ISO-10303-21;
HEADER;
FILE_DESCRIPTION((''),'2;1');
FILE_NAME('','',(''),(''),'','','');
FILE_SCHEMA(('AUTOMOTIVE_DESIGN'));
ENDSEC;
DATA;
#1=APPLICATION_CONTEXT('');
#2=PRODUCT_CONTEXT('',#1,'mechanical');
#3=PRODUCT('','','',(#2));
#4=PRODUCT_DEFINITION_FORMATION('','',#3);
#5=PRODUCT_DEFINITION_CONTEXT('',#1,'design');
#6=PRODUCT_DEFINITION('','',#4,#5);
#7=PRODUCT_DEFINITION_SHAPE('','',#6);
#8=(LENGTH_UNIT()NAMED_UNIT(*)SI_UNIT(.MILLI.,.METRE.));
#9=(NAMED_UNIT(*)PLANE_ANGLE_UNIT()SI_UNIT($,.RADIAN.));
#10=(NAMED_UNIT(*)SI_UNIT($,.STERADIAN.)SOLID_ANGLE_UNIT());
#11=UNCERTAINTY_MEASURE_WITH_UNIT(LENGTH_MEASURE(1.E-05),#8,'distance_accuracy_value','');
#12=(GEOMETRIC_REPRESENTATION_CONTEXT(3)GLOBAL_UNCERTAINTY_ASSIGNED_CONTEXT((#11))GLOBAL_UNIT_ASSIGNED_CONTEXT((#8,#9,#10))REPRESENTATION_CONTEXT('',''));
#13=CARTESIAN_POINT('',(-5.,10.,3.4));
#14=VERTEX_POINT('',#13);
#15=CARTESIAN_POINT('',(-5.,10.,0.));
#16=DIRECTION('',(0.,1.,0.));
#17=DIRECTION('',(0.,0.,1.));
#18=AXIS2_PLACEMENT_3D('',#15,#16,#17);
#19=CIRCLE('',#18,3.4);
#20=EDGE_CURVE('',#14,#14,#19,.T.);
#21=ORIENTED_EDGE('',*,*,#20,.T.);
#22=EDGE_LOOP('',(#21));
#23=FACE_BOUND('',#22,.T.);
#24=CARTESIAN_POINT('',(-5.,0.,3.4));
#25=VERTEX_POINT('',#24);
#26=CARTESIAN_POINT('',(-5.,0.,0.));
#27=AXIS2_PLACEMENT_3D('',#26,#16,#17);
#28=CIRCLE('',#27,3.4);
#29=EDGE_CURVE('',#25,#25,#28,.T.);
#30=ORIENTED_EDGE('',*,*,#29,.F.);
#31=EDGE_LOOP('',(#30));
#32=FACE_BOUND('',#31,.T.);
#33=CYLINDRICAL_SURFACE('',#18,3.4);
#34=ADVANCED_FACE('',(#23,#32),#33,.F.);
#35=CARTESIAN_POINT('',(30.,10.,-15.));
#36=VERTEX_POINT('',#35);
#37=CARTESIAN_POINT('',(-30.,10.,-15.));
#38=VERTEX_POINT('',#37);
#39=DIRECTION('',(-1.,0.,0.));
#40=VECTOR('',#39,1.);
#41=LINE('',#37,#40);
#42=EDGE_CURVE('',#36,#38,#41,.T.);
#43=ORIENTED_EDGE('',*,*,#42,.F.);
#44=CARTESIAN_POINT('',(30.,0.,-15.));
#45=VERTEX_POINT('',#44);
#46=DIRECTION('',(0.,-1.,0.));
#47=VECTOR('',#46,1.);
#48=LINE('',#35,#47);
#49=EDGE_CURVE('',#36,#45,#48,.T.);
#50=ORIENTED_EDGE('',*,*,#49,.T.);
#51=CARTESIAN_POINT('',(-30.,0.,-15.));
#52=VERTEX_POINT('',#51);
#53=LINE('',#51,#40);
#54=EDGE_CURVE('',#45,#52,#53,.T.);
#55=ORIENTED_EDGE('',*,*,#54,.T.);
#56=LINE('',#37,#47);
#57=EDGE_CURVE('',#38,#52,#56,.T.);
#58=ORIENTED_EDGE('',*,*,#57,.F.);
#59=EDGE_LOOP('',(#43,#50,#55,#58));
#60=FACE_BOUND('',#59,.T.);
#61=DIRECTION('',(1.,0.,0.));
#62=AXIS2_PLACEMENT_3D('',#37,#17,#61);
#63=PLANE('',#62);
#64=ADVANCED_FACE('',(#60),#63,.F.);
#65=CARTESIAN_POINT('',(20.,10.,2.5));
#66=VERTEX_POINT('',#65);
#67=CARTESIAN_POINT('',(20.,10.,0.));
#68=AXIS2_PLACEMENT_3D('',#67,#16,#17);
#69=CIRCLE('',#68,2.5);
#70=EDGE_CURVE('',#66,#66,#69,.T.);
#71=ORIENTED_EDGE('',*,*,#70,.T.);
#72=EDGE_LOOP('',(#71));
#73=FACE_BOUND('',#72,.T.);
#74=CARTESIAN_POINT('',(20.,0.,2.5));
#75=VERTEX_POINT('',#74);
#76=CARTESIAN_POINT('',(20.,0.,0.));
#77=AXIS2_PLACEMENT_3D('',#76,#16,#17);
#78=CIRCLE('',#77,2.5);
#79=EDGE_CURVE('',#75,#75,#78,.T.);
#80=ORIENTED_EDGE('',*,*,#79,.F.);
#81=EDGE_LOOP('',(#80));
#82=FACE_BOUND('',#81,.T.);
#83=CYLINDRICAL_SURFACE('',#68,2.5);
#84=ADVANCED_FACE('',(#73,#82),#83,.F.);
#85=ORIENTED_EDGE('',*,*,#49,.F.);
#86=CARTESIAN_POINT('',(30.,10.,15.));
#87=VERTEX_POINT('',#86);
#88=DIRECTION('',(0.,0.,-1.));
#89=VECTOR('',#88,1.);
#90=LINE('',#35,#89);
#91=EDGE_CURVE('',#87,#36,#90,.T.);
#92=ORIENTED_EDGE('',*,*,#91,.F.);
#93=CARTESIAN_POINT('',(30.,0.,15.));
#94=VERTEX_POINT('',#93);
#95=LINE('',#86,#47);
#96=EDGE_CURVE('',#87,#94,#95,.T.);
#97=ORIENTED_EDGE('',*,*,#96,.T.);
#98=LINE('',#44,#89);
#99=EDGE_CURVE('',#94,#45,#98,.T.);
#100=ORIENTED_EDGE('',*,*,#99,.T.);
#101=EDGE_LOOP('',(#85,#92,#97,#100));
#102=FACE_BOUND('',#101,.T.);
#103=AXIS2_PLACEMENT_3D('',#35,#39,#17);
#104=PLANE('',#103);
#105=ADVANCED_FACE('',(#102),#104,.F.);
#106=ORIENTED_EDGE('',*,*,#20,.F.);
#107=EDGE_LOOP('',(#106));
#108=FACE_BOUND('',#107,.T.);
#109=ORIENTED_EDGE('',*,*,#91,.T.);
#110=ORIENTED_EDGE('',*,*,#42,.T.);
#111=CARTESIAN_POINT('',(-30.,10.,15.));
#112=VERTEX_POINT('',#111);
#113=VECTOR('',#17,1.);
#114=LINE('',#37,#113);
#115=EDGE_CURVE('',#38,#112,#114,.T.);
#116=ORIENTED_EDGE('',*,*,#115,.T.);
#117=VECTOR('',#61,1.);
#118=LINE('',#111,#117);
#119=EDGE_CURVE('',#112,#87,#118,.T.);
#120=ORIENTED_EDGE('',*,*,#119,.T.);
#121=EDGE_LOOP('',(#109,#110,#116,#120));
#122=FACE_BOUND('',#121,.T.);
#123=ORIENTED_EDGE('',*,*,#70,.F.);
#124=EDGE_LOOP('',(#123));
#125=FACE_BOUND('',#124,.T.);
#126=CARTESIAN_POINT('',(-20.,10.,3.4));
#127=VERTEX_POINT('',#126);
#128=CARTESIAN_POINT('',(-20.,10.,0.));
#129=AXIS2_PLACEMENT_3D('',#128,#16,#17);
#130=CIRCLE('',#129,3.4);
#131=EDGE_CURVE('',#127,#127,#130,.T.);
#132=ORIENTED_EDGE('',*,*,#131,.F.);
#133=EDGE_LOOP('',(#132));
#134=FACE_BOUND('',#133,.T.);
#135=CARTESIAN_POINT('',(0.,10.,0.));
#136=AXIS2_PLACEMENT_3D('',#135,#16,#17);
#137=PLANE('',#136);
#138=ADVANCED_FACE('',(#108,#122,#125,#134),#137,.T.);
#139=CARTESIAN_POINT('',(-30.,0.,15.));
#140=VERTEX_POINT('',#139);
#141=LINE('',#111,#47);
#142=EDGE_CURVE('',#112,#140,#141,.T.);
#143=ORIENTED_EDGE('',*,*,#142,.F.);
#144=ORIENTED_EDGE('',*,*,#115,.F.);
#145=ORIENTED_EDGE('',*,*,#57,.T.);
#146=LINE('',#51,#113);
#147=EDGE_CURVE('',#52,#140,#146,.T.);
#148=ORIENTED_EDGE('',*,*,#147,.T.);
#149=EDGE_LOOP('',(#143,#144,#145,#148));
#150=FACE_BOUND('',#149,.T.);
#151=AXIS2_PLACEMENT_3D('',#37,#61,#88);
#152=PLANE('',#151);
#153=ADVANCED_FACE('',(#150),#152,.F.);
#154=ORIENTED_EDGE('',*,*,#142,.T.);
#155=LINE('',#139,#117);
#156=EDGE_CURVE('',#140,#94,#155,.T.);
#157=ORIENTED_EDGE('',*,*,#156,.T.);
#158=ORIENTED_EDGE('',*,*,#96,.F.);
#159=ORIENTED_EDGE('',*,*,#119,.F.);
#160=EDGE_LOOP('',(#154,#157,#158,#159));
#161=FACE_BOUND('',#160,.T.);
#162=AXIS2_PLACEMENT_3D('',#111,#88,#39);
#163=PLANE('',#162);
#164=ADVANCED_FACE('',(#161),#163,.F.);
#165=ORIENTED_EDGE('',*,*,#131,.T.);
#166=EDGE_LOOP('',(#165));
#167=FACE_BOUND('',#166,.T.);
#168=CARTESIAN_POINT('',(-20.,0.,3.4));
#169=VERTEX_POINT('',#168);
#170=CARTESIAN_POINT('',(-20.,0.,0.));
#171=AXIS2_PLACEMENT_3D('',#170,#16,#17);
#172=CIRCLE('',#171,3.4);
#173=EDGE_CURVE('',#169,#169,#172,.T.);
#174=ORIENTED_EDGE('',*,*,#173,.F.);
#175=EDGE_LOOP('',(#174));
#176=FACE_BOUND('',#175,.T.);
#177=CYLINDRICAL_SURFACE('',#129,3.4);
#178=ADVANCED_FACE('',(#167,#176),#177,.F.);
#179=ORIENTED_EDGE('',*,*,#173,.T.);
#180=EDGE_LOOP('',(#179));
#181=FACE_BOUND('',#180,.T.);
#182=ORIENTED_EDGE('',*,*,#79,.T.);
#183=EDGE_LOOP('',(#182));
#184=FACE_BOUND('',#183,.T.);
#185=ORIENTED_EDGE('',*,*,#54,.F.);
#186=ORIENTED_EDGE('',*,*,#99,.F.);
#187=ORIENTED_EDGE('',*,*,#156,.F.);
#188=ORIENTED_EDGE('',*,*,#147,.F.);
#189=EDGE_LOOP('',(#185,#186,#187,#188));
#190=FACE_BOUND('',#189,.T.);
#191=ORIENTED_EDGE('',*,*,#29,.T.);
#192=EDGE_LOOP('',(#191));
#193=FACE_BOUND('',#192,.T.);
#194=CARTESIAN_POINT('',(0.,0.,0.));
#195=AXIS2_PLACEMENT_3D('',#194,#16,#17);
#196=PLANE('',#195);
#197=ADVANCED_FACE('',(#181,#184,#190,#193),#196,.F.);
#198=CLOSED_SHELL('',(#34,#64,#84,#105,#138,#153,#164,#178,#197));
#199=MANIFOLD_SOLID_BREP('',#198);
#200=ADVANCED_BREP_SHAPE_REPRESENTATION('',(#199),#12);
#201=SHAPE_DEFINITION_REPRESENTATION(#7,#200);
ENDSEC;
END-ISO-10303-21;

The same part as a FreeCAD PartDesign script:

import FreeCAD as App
import Part
import Sketcher
from FreeCAD import Vector

doc = App.newDocument("Part")
body = doc.addObject("PartDesign::Body", "Body")

# Sketch on XZ plane
sketch1 = body.newObject("Sketcher::SketchObject", "Sketch")
sketch1.AttachmentSupport = (doc.getObject("XZ_Plane"), [""])
sketch1.MapMode = "FlatFace"
sketch1.addGeometry([
    Part.LineSegment(Vector(-30, -15, 0), Vector(-30, 15, 0)),
    Part.LineSegment(Vector(-30, 15, 0), Vector(30, 15, 0)),
    Part.LineSegment(Vector(30, 15, 0), Vector(30, -15, 0)),
    Part.LineSegment(Vector(30, -15, 0), Vector(-30, -15, 0)),
], False)
sketch1.addConstraint([
    Sketcher.Constraint("Coincident", 0, 2, 1, 1),
    Sketcher.Constraint("Coincident", 1, 2, 2, 1),
    Sketcher.Constraint("Coincident", 2, 2, 3, 1),
    Sketcher.Constraint("Coincident", 3, 2, 0, 1),
    Sketcher.Constraint("Vertical", 0),
    Sketcher.Constraint("Horizontal", 1),
    Sketcher.Constraint("Vertical", 2),
    Sketcher.Constraint("Horizontal", 3),
    Sketcher.Constraint("Symmetric", 0, 2, 2, 2, -1, 1),
    Sketcher.Constraint("DistanceX", 1, 1, 1, 2, 60.0),
    Sketcher.Constraint("DistanceY", 0, 1, 0, 2, 30.0),
])
pad1 = body.newObject("PartDesign::Pad", "Pad")
pad1.Profile = sketch1
pad1.Length = 10
pad1.Reversed = True

# Sketch on XZ plane
sketch2 = body.newObject("Sketcher::SketchObject", "Sketch001")
sketch2.AttachmentSupport = (doc.getObject("XZ_Plane"), [""])
sketch2.MapMode = "FlatFace"
sketch2.AttachmentOffset = App.Placement(Vector(0, 0, -10), App.Rotation())
sketch2.addGeometry([
    Part.Circle(Vector(-20, 0, 0), Vector(0, 0, 1), 3.4),
    Part.Circle(Vector(-5, 0, 0), Vector(0, 0, 1), 3.4),
], False)
sketch2.addConstraint([
    Sketcher.Constraint("Equal", 0, 1),
    Sketcher.Constraint("PointOnObject", 0, 3, -1),
    Sketcher.Constraint("PointOnObject", 1, 3, -1),
    Sketcher.Constraint("Diameter", 0, 6.8),
    Sketcher.Constraint("DistanceX", 0, 3, -1, 1, 20.0),
    Sketcher.Constraint("DistanceX", 1, 3, -1, 1, 5.0),
])
doc.recompute()
hole = body.newObject("PartDesign::Hole", "Hole")
hole.Profile = sketch2
hole.ThreadType = "None"
hole.Diameter = 6.8
hole.DepthType = "ThroughAll"
hole.Reversed = True

# Sketch on XZ plane
sketch3 = body.newObject("Sketcher::SketchObject", "Sketch002")
sketch3.AttachmentSupport = (doc.getObject("XZ_Plane"), [""])
sketch3.MapMode = "FlatFace"
sketch3.AttachmentOffset = App.Placement(Vector(0, 0, -10), App.Rotation())
sketch3.addGeometry(Part.Circle(Vector(20, 0, 0), Vector(0, 0, 1), 2.5), False)
sketch3.addConstraint([
    Sketcher.Constraint("PointOnObject", 0, 3, -1),
    Sketcher.Constraint("Diameter", 0, 5.0),
    Sketcher.Constraint("DistanceX", -1, 1, 0, 3, 20.0),
])
doc.recompute()
hole2 = body.newObject("PartDesign::Hole", "Hole001")
hole2.Profile = sketch3
hole2.ThreadType = "None"
hole2.Diameter = 5
hole2.DepthType = "ThroughAll"
hole2.Reversed = True

doc.recompute()
